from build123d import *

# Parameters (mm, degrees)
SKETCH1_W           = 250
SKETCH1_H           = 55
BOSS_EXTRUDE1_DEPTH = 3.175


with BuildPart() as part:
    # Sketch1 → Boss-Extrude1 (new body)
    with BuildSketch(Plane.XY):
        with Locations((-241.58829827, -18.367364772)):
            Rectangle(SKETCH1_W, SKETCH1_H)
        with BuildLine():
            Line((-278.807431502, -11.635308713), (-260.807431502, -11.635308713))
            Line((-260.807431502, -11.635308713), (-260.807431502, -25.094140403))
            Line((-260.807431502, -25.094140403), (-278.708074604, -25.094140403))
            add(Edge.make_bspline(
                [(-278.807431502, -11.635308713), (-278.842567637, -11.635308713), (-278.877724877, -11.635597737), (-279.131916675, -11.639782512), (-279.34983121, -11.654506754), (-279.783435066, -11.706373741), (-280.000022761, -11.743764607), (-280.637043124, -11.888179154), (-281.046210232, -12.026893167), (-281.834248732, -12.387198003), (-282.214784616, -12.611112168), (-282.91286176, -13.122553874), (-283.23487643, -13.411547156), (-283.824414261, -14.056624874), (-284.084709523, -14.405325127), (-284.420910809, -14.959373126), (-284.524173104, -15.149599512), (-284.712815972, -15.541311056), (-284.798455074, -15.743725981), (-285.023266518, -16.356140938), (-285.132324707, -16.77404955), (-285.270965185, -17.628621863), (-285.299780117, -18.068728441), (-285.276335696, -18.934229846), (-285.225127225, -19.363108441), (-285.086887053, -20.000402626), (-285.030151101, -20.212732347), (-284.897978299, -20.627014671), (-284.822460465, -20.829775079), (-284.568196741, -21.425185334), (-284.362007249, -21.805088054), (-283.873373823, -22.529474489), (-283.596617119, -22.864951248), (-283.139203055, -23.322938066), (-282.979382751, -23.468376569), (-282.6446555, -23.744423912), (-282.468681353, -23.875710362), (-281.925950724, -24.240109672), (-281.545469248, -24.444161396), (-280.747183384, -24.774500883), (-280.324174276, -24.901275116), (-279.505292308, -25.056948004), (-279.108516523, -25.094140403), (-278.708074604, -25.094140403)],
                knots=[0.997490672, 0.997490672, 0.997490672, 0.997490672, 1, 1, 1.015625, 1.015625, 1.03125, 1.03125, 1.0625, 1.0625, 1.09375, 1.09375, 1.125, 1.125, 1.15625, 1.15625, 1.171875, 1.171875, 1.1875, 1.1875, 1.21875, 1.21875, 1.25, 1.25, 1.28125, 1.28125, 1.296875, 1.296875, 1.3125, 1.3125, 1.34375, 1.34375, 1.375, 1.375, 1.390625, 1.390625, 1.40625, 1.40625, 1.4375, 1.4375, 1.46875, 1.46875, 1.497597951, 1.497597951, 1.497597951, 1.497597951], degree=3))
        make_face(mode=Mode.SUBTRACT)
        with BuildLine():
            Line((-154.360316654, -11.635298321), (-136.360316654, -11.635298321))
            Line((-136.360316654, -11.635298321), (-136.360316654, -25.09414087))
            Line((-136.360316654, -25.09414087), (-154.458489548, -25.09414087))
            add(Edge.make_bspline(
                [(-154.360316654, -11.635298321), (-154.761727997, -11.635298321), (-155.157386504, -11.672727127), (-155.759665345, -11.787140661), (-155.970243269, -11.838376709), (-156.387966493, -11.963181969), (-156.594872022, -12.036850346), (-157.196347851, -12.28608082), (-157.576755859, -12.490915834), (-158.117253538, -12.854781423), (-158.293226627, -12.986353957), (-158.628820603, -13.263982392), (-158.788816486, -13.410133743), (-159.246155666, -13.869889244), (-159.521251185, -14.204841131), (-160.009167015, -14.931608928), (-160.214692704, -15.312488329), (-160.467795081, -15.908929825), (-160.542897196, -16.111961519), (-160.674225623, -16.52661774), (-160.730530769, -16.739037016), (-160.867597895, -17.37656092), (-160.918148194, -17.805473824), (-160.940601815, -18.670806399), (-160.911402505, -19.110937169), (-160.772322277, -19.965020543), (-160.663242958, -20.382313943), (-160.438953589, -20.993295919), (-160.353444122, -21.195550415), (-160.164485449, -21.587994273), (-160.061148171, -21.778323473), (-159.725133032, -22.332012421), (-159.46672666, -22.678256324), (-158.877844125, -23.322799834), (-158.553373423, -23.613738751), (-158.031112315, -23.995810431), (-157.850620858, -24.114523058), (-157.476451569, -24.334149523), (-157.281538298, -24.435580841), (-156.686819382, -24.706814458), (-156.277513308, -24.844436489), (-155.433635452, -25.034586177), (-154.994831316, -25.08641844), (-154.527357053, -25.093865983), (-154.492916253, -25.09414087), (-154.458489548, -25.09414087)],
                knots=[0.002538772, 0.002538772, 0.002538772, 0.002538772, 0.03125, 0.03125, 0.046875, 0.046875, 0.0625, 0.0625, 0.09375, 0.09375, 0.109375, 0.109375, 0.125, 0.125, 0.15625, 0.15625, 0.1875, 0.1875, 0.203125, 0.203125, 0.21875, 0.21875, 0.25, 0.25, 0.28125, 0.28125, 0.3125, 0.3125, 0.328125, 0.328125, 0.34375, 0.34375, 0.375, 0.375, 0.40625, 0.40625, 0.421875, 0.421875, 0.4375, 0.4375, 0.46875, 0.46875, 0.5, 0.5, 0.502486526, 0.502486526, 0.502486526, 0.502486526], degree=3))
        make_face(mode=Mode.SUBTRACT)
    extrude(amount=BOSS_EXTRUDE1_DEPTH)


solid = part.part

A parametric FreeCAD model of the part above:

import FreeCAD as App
import Part
import Sketcher

V = App.Vector

doc = App.newDocument("Part")
body = doc.addObject("PartDesign::Body", "Body")

sketch1 = doc.addObject("Sketcher::SketchObject", "Sketch")
body.addObject(sketch1)
sketch1.AttachmentSupport = (doc.XY_Plane, [""])
sketch1.MapMode = "FlatFace"
sketch1.addGeometry(Part.LineSegment(V(-366.588298, 9.132635, 0), V(-366.588298, -45.867365, 0)), False)
sketch1.addGeometry(Part.LineSegment(V(-366.588298, -45.867365, 0), V(-116.588298, -45.867365, 0)), False)
sketch1.addGeometry(Part.LineSegment(V(-116.588298, -45.867365, 0), V(-116.588298, 9.132635, 0)), False)
sketch1.addGeometry(Part.LineSegment(V(-116.588298, 9.132635, 0), V(-366.588298, 9.132635, 0)), False)
sketch1.addGeometry(Part.BSplineCurve([V(-278.807432, -11.635309, 0), V(-278.842568, -11.635309, 0), V(-278.877725, -11.635598, 0), V(-279.131917, -11.639783, 0), V(-279.349831, -11.654507, 0), V(-279.783435, -11.706374, 0), V(-280.000023, -11.743765, 0), V(-280.637043, -11.888179, 0), V(-281.04621, -12.026893, 0), V(-281.834249, -12.387198, 0), V(-282.214785, -12.611112, 0), V(-282.912862, -13.122554, 0), V(-283.234876, -13.411547, 0), V(-283.824414, -14.056625, 0), V(-284.08471, -14.405325, 0), V(-284.420911, -14.959373, 0), V(-284.524173, -15.1496, 0), V(-284.712816, -15.541311, 0), V(-284.798455, -15.743726, 0), V(-285.023267, -16.356141, 0), V(-285.132325, -16.77405, 0), V(-285.270965, -17.628622, 0), V(-285.29978, -18.068728, 0), V(-285.276336, -18.93423, 0), V(-285.225127, -19.363108, 0), V(-285.086887, -20.000403, 0), V(-285.030151, -20.212732, 0), V(-284.897978, -20.627015, 0), V(-284.82246, -20.829775, 0), V(-284.568197, -21.425185, 0), V(-284.362007, -21.805088, 0), V(-283.873374, -22.529474, 0), V(-283.596617, -22.864951, 0), V(-283.139203, -23.322938, 0), V(-282.979383, -23.468377, 0), V(-282.644655, -23.744424, 0), V(-282.468681, -23.87571, 0), V(-281.925951, -24.24011, 0), V(-281.545469, -24.444161, 0), V(-280.747183, -24.774501, 0), V(-280.324174, -24.901275, 0), V(-279.505292, -25.056948, 0), V(-279.108517, -25.09414, 0), V(-278.708075, -25.09414, 0)], [4, 2, 2, 2, 2, 2, 2, 2, 2, 2, 2, 2, 2, 2, 2, 2, 2, 2, 2, 2, 2, 4], [0.997490672, 1, 1.015625, 1.03125, 1.0625, 1.09375, 1.125, 1.15625, 1.171875, 1.1875, 1.21875, 1.25, 1.28125, 1.296875, 1.3125, 1.34375, 1.375, 1.390625, 1.40625, 1.4375, 1.46875, 1.497597951], False, 3, [1, 1, 1, 1, 1, 1, 1, 1, 1, 1, 1, 1, 1, 1, 1, 1, 1, 1, 1, 1, 1, 1, 1, 1, 1, 1, 1, 1, 1, 1, 1, 1, 1, 1, 1, 1, 1, 1, 1, 1, 1, 1, 1, 1], False), False)
sketch1.addGeometry(Part.LineSegment(V(-278.807432, -11.635309, 0), V(-260.807432, -11.635309, 0)), False)
sketch1.addGeometry(Part.LineSegment(V(-260.807432, -11.635309, 0), V(-260.807432, -25.09414, 0)), False)
sketch1.addGeometry(Part.LineSegment(V(-260.807432, -25.09414, 0), V(-278.708075, -25.09414, 0)), False)
sketch1.addGeometry(Part.BSplineCurve([V(-154.360317, -11.635298, 0), V(-154.761728, -11.635298, 0), V(-155.157387, -11.672727, 0), V(-155.759665, -11.787141, 0), V(-155.970243, -11.838377, 0), V(-156.387966, -11.963182, 0), V(-156.594872, -12.03685, 0), V(-157.196348, -12.286081, 0), V(-157.576756, -12.490916, 0), V(-158.117254, -12.854781, 0), V(-158.293227, -12.986354, 0), V(-158.628821, -13.263982, 0), V(-158.788816, -13.410134, 0), V(-159.246156, -13.869889, 0), V(-159.521251, -14.204841, 0), V(-160.009167, -14.931609, 0), V(-160.214693, -15.312488, 0), V(-160.467795, -15.90893, 0), V(-160.542897, -16.111962, 0), V(-160.674226, -16.526618, 0), V(-160.730531, -16.739037, 0), V(-160.867598, -17.376561, 0), V(-160.918148, -17.805474, 0), V(-160.940602, -18.670806, 0), V(-160.911403, -19.110937, 0), V(-160.772322, -19.965021, 0), V(-160.663243, -20.382314, 0), V(-160.438954, -20.993296, 0), V(-160.353444, -21.19555, 0), V(-160.164485, -21.587994, 0), V(-160.061148, -21.778323, 0), V(-159.725133, -22.332012, 0), V(-159.466727, -22.678256, 0), V(-158.877844, -23.3228, 0), V(-158.553373, -23.613739, 0), V(-158.031112, -23.99581, 0), V(-157.850621, -24.114523, 0), V(-157.476452, -24.33415, 0), V(-157.281538, -24.435581, 0), V(-156.686819, -24.706814, 0), V(-156.277513, -24.844436, 0), V(-155.433635, -25.034586, 0), V(-154.994831, -25.086418, 0), V(-154.527357, -25.093866, 0), V(-154.492916, -25.094141, 0), V(-154.45849, -25.094141, 0)], [4, 2, 2, 2, 2, 2, 2, 2, 2, 2, 2, 2, 2, 2, 2, 2, 2, 2, 2, 2, 2, 2, 4], [0.002538772, 0.03125, 0.046875, 0.0625, 0.09375, 0.109375, 0.125, 0.15625, 0.1875, 0.203125, 0.21875, 0.25, 0.28125, 0.3125, 0.328125, 0.34375, 0.375, 0.40625, 0.421875, 0.4375, 0.46875, 0.5, 0.502486526], False, 3, [1, 1, 1, 1, 1, 1, 1, 1, 1, 1, 1, 1, 1, 1, 1, 1, 1, 1, 1, 1, 1, 1, 1, 1, 1, 1, 1, 1, 1, 1, 1, 1, 1, 1, 1, 1, 1, 1, 1, 1, 1, 1, 1, 1, 1, 1], False), False)
sketch1.addGeometry(Part.LineSegment(V(-154.360317, -11.635298, 0), V(-136.360317, -11.635298, 0)), False)
sketch1.addGeometry(Part.LineSegment(V(-136.360317, -11.635298, 0), V(-136.360317, -25.094141, 0)), False)
sketch1.addGeometry(Part.LineSegment(V(-136.360317, -25.094141, 0), V(-154.45849, -25.094141, 0)), False)
sketch1.addConstraint(Sketcher.Constraint("Block", 4))
sketch1.addConstraint(Sketcher.Constraint("Block", 8))
sketch1.addConstraint(Sketcher.Constraint("Coincident", 0, 2, 1, 1))
sketch1.addConstraint(Sketcher.Constraint("Coincident", 1, 2, 2, 1))
sketch1.addConstraint(Sketcher.Constraint("Coincident", 2, 2, 3, 1))
sketch1.addConstraint(Sketcher.Constraint("Coincident", 3, 2, 0, 1))
sketch1.addConstraint(Sketcher.Constraint("Coincident", 4, 1, 5, 1))
sketch1.addConstraint(Sketcher.Constraint("Coincident", 5, 2, 6, 1))
sketch1.addConstraint(Sketcher.Constraint("Coincident", 6, 2, 7, 1))
sketch1.addConstraint(Sketcher.Constraint("Coincident", 7, 2, 4, 2))
sketch1.addConstraint(Sketcher.Constraint("Coincident", 8, 1, 9, 1))
sketch1.addConstraint(Sketcher.Constraint("Coincident", 9, 2, 10, 1))
sketch1.addConstraint(Sketcher.Constraint("Coincident", 10, 2, 11, 1))
sketch1.addConstraint(Sketcher.Constraint("Coincident", 11, 2, 8, 2))
sketch1.addConstraint(Sketcher.Constraint("Vertical", 0))
sketch1.addConstraint(Sketcher.Constraint("Horizontal", 1))
sketch1.addConstraint(Sketcher.Constraint("Vertical", 2))
sketch1.addConstraint(Sketcher.Constraint("Horizontal", 3))
sketch1.addConstraint(Sketcher.Constraint("Horizontal", 5))
sketch1.addConstraint(Sketcher.Constraint("Vertical", 6))
sketch1.addConstraint(Sketcher.Constraint("Horizontal", 7))
sketch1.addConstraint(Sketcher.Constraint("Horizontal", 9))
sketch1.addConstraint(Sketcher.Constraint("Vertical", 10))
sketch1.addConstraint(Sketcher.Constraint("Horizontal", 11))
sketch1.addConstraint(Sketcher.Constraint("Equal", 5, 9))
sketch1.addConstraint(Sketcher.Constraint("DistanceX", 1, 1, 1, 2, 250.0))
sketch1.addConstraint(Sketcher.Constraint("DistanceX", 5, 1, 5, 2, 18.0))
sketch1.addConstraint(Sketcher.Constraint("DistanceY", 0, 2, 0, 1, 55.0))
sketch1.addConstraint(Sketcher.Constraint("DistanceX", 0, 2, -1, 1, 366.588298))
sketch1.addConstraint(Sketcher.Constraint("DistanceY", 0, 2, -1, 1, 45.867365))
pad1 = doc.addObject("PartDesign::Pad", "Pad")
body.addObject(pad1)
pad1.Profile = sketch1
pad1.Length = 3.175

doc.recompute()
